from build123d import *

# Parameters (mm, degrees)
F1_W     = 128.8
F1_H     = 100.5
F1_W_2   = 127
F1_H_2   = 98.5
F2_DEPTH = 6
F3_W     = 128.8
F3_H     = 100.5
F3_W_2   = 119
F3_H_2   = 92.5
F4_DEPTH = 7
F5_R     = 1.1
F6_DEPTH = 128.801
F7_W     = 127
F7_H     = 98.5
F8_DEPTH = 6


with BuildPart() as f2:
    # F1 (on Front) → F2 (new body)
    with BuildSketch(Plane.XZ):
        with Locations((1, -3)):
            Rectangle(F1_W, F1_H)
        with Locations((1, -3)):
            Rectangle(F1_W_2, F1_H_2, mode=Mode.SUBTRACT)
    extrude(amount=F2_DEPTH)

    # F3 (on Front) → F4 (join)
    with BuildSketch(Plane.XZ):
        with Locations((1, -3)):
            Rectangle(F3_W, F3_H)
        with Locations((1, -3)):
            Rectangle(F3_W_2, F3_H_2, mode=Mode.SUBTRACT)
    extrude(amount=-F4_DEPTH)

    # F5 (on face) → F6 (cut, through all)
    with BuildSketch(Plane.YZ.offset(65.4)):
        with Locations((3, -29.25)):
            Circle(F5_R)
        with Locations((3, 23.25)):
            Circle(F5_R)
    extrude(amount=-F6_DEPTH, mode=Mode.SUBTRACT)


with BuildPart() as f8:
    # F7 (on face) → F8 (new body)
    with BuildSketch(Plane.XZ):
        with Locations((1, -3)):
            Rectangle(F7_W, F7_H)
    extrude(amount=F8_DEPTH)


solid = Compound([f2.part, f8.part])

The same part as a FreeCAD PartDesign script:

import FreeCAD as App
import Part
import Sketcher


def add_polygon(sketch, points):
    """Adds a closed chain of lines whose ends are joined by coincident constraints."""
    first, n = sketch.GeometryCount, len(points)
    for a, b in zip(points, points[1:] + points[:1]):
        sketch.addGeometry(Part.LineSegment(App.Vector(*a, 0), App.Vector(*b, 0)), False)
    for i in range(n):
        sketch.addConstraint(Sketcher.Constraint("Coincident", first + i, 2, first + (i + 1) % n, 1))

doc = App.newDocument("Part")
body = doc.addObject("PartDesign::Body", "Body")

# Sketch on XZ plane
sketch1 = body.newObject("Sketcher::SketchObject", "Sketch")
sketch1.AttachmentSupport = (doc.getObject("XZ_Plane"), [""])
sketch1.MapMode = "FlatFace"
add_polygon(sketch1, [(-63.4, 47.25), (-63.4, -53.25), (65.4, -53.25), (65.4, 47.25)])  # lines 0-3
add_polygon(sketch1, [(64.5, -52.25), (-62.5, -52.25), (-62.5, 46.25), (64.5, 46.25)])  # lines 4-7
sketch1.addConstraint([
    Sketcher.Constraint("Vertical", 0),
    Sketcher.Constraint("Horizontal", 1),
    Sketcher.Constraint("Vertical", 2),
    Sketcher.Constraint("Horizontal", 3),
    Sketcher.Constraint("Horizontal", 4),
    Sketcher.Constraint("Vertical", 5),
    Sketcher.Constraint("Horizontal", 6),
    Sketcher.Constraint("Vertical", 7),
    Sketcher.Constraint("DistanceX", 4, 2, 4, 1, 127.0),
    Sketcher.Constraint("DistanceX", 1, 1, 1, 2, 128.8),
    Sketcher.Constraint("DistanceY", 0, 2, 0, 1, 100.5),
    Sketcher.Constraint("DistanceY", 5, 1, 5, 2, 98.5),
    Sketcher.Constraint("DistanceY", 0, 2, 4, 2, 1.0),
    Sketcher.Constraint("DistanceX", 0, 2, -1, 1, 63.4),
    Sketcher.Constraint("DistanceX", 4, 2, -1, 1, 62.5),
    Sketcher.Constraint("DistanceY", 0, 2, -1, 1, 53.25),
])
pad1 = body.newObject("PartDesign::Pad", "Pad")
pad1.Profile = sketch1
pad1.Length = 6

# Sketch on XZ plane
sketch2 = body.newObject("Sketcher::SketchObject", "Sketch001")
sketch2.AttachmentSupport = (doc.getObject("XZ_Plane"), [""])
sketch2.MapMode = "FlatFace"
add_polygon(sketch2, [(-63.4, 47.25), (-63.4, -53.25), (65.4, -53.25), (65.4, 47.25)])  # lines 0-3
add_polygon(sketch2, [(60.5, -49.25), (-58.5, -49.25), (-58.5, 43.25), (60.5, 43.25)])  # lines 4-7
sketch2.addConstraint([
    Sketcher.Constraint("Vertical", 0),
    Sketcher.Constraint("Horizontal", 1),
    Sketcher.Constraint("Vertical", 2),
    Sketcher.Constraint("Horizontal", 3),
    Sketcher.Constraint("Horizontal", 4),
    Sketcher.Constraint("Vertical", 5),
    Sketcher.Constraint("Horizontal", 6),
    Sketcher.Constraint("Vertical", 7),
    Sketcher.Constraint("DistanceX", 4, 2, 4, 1, 119.0),
    Sketcher.Constraint("DistanceX", 1, 1, 1, 2, 128.8),
    Sketcher.Constraint("DistanceY", 0, 2, 0, 1, 100.5),
    Sketcher.Constraint("DistanceY", 5, 1, 5, 2, 92.5),
    Sketcher.Constraint("DistanceY", 0, 2, 4, 2, 4.0),
    Sketcher.Constraint("DistanceX", 0, 2, -1, 1, 63.4),
    Sketcher.Constraint("DistanceX", 4, 2, -1, 1, 58.5),
    Sketcher.Constraint("DistanceY", 0, 2, -1, 1, 53.25),
])
pad2 = body.newObject("PartDesign::Pad", "Pad001")
pad2.Profile = sketch2
pad2.Length = 7
pad2.Reversed = True

# Sketch on YZ plane
sketch3 = body.newObject("Sketcher::SketchObject", "Sketch002")
sketch3.AttachmentSupport = (doc.getObject("YZ_Plane"), [""])
sketch3.MapMode = "FlatFace"
sketch3.AttachmentOffset = App.Placement(App.Vector(0, 0, 65.4), App.Rotation())
sketch3.addGeometry([
    Part.Circle(App.Vector(3, -29.25, 0), App.Vector(0, 0, 1), 1.1),
    Part.Circle(App.Vector(3, 23.25, 0), App.Vector(0, 0, 1), 1.1),
], False)
sketch3.addConstraint([
    Sketcher.Constraint("Equal", 0, 1),
    Sketcher.Constraint("Vertical", 0, 3, 1, 3),
    Sketcher.Constraint("Diameter", 0, 2.2),
    Sketcher.Constraint("DistanceX", -1, 1, 0, 3, 3.0),
    Sketcher.Constraint("DistanceY", 0, 3, 1, 3, 52.5),
    Sketcher.Constraint("DistanceY", 0, 3, -1, 1, 29.25),
])
pocket1 = body.newObject("PartDesign::Pocket", "Pocket")
pocket1.Profile = sketch3
pocket1.Type = "ThroughAll"
body2 = doc.addObject("PartDesign::Body", "Body001")

# Sketch on XZ plane
sketch4 = body2.newObject("Sketcher::SketchObject", "Sketch003")
sketch4.AttachmentSupport = (doc.getObject("XZ_Plane001"), [""])
sketch4.MapMode = "FlatFace"
add_polygon(sketch4, [(-62.5, 46.25), (-62.5, -52.25), (64.5, -52.25), (64.5, 46.25)])  # lines 0-3
sketch4.addConstraint([
    Sketcher.Constraint("Vertical", 0),
    Sketcher.Constraint("Horizontal", 1),
    Sketcher.Constraint("Vertical", 2),
    Sketcher.Constraint("Horizontal", 3),
    Sketcher.Constraint("DistanceX", 1, 1, 1, 2, 127.0),
    Sketcher.Constraint("DistanceY", 0, 2, 0, 1, 98.5),
    Sketcher.Constraint("DistanceX", 0, 2, -1, 1, 62.5),
    Sketcher.Constraint("DistanceY", 0, 2, -1, 1, 52.25),
])
pad3 = body2.newObject("PartDesign::Pad", "Pad002")
pad3.Profile = sketch4
pad3.Length = 6

doc.recompute()
